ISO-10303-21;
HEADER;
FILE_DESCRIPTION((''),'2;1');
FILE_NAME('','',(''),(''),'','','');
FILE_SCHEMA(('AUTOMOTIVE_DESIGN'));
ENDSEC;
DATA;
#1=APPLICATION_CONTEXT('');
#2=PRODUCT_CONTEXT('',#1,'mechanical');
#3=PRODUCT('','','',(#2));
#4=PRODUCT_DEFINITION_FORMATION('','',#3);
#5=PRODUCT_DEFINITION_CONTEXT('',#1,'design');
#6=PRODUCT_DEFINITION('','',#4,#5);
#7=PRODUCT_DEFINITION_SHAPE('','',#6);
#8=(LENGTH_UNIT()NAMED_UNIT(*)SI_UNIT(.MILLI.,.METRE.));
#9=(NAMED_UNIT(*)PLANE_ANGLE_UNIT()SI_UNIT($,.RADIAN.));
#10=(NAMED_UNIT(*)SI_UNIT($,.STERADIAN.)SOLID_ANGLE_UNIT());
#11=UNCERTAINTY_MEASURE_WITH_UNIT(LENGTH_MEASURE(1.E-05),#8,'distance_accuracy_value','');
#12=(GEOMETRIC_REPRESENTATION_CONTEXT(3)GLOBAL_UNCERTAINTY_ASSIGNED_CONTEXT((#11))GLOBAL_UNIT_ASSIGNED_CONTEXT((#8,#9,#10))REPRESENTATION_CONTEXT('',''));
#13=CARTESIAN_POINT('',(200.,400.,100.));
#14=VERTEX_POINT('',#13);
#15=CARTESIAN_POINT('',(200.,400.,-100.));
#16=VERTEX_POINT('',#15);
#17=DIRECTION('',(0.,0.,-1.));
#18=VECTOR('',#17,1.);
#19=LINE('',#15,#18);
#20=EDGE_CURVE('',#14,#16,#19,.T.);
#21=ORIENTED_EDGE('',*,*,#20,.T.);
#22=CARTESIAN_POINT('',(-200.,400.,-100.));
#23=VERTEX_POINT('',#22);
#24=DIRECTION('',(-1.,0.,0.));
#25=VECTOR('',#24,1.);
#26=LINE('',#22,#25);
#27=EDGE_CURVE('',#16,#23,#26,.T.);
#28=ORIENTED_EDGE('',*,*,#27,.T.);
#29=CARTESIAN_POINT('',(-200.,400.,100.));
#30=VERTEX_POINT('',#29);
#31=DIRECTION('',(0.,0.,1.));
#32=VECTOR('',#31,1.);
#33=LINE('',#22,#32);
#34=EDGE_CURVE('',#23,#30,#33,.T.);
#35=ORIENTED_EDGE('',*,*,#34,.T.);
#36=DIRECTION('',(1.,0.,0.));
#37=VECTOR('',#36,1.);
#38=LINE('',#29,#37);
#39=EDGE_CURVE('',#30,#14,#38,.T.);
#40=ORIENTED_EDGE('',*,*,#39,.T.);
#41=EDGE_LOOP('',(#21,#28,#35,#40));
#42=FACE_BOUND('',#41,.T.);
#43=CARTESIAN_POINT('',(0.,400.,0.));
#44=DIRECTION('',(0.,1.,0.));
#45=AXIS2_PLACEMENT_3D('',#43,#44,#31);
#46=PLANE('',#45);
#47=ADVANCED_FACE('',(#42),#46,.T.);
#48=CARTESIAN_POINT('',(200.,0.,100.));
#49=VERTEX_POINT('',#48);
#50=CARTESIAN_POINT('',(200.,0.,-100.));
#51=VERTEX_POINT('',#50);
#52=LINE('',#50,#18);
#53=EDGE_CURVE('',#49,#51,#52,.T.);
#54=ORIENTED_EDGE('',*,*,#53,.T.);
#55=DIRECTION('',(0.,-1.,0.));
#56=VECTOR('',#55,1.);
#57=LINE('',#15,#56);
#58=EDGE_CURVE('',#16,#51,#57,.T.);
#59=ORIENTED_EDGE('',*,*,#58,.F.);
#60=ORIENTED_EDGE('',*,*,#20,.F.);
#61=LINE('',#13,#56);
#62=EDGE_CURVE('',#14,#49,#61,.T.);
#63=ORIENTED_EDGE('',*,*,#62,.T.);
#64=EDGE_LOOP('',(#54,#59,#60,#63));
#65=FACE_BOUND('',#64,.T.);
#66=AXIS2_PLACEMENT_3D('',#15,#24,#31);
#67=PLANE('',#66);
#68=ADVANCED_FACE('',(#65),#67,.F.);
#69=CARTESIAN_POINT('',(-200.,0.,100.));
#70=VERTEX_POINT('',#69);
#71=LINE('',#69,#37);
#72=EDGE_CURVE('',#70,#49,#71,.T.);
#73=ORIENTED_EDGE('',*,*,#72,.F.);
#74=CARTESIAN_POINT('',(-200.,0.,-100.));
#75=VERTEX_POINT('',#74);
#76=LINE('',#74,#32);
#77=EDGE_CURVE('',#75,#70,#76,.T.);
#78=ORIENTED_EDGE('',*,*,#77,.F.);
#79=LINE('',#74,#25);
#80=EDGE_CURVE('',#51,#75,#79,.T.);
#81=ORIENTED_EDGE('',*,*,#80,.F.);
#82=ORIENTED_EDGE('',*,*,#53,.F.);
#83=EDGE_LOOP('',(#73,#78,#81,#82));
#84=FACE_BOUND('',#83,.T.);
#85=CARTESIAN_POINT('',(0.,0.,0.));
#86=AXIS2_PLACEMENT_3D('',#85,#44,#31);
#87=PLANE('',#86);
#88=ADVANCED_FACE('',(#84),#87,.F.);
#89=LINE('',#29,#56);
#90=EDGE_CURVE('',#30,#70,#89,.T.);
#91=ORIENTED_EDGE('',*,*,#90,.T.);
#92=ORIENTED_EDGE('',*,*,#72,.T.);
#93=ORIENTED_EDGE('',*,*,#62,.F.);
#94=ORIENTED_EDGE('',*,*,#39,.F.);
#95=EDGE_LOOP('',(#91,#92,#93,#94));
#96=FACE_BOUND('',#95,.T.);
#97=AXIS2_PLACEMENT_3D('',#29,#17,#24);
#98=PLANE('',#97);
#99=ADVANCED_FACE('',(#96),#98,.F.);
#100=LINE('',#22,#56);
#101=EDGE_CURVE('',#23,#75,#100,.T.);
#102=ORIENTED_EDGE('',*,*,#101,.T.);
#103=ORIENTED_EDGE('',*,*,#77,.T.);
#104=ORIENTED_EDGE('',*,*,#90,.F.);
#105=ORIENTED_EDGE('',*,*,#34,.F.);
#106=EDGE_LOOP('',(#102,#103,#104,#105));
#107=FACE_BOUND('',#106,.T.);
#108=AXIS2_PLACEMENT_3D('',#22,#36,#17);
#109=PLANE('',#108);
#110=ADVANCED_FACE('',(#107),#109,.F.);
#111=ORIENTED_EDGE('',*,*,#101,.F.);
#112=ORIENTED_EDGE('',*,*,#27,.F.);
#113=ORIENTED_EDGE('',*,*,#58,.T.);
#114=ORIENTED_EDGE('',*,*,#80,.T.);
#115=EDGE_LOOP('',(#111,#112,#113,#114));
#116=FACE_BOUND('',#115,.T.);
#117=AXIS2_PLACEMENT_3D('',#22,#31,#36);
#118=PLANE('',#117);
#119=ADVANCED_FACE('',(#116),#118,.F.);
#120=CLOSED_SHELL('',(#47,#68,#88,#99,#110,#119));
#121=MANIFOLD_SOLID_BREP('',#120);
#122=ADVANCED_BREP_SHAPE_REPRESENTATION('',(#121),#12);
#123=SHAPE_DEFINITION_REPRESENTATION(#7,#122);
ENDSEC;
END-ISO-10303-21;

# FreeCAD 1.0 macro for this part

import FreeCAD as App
import Part
import Sketcher
from FreeCAD import Vector

doc = App.newDocument("Part")
body = doc.addObject("PartDesign::Body", "Body")

# Sketch on XZ plane
sketch1 = body.newObject("Sketcher::SketchObject", "Sketch")
sketch1.AttachmentSupport = (doc.getObject("XZ_Plane"), [""])
sketch1.MapMode = "FlatFace"
sketch1.addGeometry(Part.LineSegment(Vector(-200, -100, 0), Vector(-200, 100, 0)), False)
sketch1.addGeometry(Part.LineSegment(Vector(-200, 100, 0), Vector(200, 100, 0)), False)
sketch1.addGeometry(Part.LineSegment(Vector(200, 100, 0), Vector(200, -100, 0)), False)
sketch1.addGeometry(Part.LineSegment(Vector(200, -100, 0), Vector(-200, -100, 0)), False)
sketch1.addConstraint(Sketcher.Constraint("Coincident", 0, 2, 1, 1))
sketch1.addConstraint(Sketcher.Constraint("Coincident", 1, 2, 2, 1))
sketch1.addConstraint(Sketcher.Constraint("Coincident", 2, 2, 3, 1))
sketch1.addConstraint(Sketcher.Constraint("Coincident", 3, 2, 0, 1))
sketch1.addConstraint(Sketcher.Constraint("Vertical", 0))
sketch1.addConstraint(Sketcher.Constraint("Horizontal", 1))
sketch1.addConstraint(Sketcher.Constraint("Vertical", 2))
sketch1.addConstraint(Sketcher.Constraint("Horizontal", 3))
sketch1.addConstraint(Sketcher.Constraint("Symmetric", 0, 2, 2, 2, -1, 1))
sketch1.addConstraint(Sketcher.Constraint("DistanceX", 1, 1, 1, 2, 400.0))
sketch1.addConstraint(Sketcher.Constraint("DistanceY", 0, 1, 0, 2, 200.0))
pad1 = body.newObject("PartDesign::Pad", "Pad")
pad1.Profile = sketch1
pad1.Length = 400
pad1.Reversed = True

doc.recompute()
